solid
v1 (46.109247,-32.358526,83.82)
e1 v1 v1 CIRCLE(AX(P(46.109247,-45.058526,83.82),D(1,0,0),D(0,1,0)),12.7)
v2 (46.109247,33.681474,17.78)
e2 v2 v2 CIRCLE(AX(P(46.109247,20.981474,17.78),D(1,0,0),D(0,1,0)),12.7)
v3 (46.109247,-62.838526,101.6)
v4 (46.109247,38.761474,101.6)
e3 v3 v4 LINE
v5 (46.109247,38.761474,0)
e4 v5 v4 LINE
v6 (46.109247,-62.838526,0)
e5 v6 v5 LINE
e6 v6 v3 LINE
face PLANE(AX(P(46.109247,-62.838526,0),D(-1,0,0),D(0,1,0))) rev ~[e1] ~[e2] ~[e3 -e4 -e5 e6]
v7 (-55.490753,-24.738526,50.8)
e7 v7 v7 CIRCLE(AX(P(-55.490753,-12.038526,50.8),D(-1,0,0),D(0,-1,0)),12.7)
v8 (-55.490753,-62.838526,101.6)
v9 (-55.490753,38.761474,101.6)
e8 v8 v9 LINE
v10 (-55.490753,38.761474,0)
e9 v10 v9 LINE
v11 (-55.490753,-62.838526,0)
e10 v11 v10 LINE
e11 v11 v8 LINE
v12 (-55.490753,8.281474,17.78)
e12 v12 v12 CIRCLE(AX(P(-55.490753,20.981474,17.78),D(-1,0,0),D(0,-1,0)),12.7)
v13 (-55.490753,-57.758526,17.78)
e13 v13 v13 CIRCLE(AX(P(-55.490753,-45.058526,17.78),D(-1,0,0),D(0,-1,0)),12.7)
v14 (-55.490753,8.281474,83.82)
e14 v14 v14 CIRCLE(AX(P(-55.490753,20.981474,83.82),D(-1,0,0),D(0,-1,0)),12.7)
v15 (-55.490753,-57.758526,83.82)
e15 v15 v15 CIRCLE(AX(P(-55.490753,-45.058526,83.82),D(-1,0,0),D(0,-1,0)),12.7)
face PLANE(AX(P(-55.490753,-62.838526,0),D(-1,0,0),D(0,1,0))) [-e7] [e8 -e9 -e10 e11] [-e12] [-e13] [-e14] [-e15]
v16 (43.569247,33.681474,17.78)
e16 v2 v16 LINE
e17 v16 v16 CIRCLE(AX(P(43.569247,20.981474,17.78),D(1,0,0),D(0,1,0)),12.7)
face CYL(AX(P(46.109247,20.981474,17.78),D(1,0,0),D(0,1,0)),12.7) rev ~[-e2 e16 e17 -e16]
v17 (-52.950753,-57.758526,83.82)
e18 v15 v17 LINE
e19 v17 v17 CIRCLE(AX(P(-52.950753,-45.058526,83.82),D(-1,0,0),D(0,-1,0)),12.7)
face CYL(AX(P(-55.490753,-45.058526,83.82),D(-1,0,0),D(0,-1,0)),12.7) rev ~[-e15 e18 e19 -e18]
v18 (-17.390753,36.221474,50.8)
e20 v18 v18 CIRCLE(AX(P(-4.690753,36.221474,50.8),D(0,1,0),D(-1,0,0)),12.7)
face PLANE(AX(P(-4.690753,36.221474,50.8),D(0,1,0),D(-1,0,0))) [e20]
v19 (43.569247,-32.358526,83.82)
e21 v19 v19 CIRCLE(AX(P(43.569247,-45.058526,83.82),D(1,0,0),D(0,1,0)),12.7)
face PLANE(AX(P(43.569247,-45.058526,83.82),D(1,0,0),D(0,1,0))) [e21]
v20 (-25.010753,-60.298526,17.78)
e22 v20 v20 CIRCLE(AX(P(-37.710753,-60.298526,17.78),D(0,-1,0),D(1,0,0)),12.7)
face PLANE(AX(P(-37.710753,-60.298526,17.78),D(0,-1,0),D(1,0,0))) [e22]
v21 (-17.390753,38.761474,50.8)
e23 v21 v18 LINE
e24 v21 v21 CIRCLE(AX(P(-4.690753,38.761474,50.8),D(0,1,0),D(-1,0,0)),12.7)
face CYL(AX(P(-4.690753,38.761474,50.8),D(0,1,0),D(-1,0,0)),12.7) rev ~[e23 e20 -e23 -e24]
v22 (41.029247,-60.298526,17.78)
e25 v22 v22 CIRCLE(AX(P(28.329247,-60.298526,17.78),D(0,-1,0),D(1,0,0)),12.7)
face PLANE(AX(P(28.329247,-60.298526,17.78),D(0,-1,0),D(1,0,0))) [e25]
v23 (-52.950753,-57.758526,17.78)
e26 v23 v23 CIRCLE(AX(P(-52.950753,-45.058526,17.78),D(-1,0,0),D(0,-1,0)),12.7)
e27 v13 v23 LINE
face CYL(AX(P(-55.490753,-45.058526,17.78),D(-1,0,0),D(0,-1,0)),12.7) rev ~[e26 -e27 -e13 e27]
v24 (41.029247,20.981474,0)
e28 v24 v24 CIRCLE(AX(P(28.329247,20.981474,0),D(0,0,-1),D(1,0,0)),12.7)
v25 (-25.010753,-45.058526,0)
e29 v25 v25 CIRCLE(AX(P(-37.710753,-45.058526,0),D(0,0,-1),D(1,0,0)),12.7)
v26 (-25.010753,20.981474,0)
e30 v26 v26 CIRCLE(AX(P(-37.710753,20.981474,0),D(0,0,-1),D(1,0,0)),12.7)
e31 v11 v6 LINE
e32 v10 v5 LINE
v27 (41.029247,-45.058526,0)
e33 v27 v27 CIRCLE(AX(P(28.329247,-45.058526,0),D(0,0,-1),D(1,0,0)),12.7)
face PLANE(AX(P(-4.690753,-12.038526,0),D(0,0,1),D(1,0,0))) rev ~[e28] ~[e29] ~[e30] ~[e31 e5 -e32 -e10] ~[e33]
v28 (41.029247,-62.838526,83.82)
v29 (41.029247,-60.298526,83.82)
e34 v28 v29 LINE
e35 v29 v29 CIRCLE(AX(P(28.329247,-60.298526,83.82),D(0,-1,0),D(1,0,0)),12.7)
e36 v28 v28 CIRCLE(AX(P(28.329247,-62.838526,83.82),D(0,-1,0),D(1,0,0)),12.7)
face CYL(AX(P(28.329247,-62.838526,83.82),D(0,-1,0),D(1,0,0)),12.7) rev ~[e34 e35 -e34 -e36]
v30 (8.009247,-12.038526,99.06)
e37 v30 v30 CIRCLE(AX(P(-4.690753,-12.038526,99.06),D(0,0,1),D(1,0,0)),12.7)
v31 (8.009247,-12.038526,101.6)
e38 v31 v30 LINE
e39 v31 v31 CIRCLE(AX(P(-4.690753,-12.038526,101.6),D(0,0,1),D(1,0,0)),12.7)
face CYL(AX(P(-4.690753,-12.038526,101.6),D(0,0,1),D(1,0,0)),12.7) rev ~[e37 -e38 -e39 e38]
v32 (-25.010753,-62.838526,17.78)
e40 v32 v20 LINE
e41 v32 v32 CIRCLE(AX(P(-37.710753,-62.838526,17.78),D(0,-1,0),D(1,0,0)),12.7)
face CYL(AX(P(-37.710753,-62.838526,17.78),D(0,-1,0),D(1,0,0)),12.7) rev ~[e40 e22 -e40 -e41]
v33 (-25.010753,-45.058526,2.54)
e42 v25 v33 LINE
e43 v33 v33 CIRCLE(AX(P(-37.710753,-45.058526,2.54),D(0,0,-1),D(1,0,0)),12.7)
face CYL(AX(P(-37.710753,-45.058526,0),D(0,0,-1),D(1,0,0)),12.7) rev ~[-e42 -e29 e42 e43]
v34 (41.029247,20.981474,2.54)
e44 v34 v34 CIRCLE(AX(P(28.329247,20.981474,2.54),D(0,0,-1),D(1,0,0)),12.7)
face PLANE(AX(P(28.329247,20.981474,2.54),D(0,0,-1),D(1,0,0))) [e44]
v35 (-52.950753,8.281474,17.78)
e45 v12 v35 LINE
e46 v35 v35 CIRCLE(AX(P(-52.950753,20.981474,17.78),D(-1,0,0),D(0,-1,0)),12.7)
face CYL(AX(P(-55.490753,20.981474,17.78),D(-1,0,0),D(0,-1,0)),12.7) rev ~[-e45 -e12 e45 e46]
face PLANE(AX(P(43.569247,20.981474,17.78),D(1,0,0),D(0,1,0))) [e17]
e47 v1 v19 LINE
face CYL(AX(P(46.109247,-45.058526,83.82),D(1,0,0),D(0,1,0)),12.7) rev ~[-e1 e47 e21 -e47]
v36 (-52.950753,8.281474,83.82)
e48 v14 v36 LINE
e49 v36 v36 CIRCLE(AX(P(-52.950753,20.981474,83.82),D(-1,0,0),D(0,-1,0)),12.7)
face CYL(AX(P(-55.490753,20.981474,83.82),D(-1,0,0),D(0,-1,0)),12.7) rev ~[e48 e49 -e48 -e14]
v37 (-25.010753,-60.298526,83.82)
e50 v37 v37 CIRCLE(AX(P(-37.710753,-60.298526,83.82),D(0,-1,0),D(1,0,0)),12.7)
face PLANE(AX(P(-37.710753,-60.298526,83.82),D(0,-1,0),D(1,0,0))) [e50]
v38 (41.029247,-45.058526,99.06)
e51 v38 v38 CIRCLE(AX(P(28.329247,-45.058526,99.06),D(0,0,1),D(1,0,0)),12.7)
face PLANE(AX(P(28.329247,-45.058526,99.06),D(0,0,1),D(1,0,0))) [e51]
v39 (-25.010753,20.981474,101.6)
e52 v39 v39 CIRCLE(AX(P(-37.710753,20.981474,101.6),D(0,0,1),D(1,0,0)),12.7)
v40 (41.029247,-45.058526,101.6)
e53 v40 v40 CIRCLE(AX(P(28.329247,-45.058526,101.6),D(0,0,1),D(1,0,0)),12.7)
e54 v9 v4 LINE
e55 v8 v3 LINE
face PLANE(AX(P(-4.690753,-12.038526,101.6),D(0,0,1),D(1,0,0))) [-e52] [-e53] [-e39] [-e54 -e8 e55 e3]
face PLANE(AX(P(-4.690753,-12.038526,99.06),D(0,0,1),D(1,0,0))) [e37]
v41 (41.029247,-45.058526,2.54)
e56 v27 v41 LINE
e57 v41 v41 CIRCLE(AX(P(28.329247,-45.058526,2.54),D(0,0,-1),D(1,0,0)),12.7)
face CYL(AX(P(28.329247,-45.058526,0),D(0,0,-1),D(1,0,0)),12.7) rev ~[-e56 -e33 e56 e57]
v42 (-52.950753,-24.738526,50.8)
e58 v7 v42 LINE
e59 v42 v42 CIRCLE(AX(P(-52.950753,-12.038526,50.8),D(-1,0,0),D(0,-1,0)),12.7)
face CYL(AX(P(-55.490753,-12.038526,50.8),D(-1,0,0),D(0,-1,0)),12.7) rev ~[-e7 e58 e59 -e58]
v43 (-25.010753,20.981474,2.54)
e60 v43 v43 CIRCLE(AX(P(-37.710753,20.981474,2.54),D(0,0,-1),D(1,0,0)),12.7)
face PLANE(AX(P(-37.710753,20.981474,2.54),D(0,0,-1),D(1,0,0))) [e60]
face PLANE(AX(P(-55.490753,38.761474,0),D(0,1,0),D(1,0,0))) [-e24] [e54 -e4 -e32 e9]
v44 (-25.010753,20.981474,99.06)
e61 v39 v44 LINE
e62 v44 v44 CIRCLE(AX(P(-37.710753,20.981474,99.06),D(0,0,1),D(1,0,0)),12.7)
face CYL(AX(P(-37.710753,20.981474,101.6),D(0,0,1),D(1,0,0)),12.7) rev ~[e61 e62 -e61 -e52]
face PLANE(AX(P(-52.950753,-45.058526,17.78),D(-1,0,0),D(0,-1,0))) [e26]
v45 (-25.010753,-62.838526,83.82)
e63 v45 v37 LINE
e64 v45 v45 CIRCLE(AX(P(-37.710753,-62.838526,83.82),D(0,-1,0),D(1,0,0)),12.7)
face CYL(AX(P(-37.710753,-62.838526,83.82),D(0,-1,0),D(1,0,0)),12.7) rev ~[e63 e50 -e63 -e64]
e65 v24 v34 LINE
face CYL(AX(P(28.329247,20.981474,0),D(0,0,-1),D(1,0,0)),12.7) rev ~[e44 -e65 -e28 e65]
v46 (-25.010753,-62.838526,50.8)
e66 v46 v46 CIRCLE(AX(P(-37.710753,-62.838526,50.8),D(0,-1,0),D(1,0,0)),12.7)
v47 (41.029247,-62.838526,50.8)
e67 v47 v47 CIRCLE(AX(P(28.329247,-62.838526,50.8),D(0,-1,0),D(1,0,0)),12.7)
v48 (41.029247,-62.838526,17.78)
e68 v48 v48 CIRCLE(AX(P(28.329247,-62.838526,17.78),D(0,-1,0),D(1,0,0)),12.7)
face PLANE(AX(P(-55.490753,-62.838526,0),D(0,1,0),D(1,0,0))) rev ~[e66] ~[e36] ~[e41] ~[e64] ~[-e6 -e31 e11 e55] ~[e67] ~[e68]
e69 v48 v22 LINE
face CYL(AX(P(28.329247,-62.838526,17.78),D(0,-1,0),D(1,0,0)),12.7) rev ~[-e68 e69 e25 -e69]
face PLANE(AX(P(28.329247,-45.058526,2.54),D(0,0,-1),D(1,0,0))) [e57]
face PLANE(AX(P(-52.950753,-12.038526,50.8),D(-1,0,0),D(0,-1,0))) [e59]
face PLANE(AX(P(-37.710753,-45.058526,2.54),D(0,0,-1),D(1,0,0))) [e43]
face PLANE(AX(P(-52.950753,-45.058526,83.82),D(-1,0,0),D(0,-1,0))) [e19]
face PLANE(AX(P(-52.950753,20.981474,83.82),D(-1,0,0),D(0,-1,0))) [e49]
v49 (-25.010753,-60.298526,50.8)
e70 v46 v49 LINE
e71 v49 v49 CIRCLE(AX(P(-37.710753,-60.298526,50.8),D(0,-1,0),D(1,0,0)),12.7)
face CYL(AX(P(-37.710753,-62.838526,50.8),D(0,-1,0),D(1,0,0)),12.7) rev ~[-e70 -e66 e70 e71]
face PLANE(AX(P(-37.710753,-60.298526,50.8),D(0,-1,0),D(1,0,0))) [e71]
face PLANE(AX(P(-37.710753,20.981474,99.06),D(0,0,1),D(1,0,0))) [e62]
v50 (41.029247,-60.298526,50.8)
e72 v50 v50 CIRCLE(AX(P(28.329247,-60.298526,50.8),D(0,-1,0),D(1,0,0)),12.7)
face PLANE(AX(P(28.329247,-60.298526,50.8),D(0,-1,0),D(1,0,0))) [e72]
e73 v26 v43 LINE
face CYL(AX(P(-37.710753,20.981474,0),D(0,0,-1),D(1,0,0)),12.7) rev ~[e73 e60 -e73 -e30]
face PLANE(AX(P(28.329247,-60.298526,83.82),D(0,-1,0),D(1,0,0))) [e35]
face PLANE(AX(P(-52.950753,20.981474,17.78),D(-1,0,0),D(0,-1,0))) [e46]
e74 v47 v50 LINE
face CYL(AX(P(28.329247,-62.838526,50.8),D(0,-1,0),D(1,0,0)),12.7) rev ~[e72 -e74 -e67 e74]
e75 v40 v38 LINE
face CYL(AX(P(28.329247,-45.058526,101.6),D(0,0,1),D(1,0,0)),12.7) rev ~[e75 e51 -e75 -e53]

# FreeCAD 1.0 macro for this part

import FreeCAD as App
import Part
import Sketcher
from FreeCAD import Vector
Q = App.Units.Quantity

doc = App.newDocument("Part")
body = doc.addObject("PartDesign::Body", "Body")

sketch1 = body.newObject("Sketcher::SketchObject", "Sketch")
sketch1.AttachmentSupport = (doc.getObject("XY_Plane"), [""])
sketch1.MapMode = "FlatFace"
sketch1.addGeometry([
    Part.LineSegment(Vector(-55, 39, 0), Vector(-55, -63, 0)),
    Part.LineSegment(Vector(-55, -63, 0), Vector(46, -63, 0)),
    Part.LineSegment(Vector(46, -63, 0), Vector(46, 39, 0)),
    Part.LineSegment(Vector(46, 39, 0), Vector(-55, 39, 0)),
], False)
sketch1.addConstraint([
    Sketcher.Constraint("Coincident", 0, 2, 1, 1),
    Sketcher.Constraint("Coincident", 1, 2, 2, 1),
    Sketcher.Constraint("Coincident", 2, 2, 3, 1),
    Sketcher.Constraint("Coincident", 3, 2, 0, 1),
    Sketcher.Constraint("Vertical", 0),
    Sketcher.Constraint("Horizontal", 1),
    Sketcher.Constraint("Vertical", 2),
    Sketcher.Constraint("Horizontal", 3),
    Sketcher.Constraint("Equal", 3, 0),
    Sketcher.Constraint("DistanceX", 1, 1, 1, 2, Q("4 in")),
    Sketcher.Constraint("DistanceX", 0, 2, -1, 1, 55.490753),
    Sketcher.Constraint("DistanceY", 0, 2, -1, 1, 62.838526),
])
pad1 = body.newObject("PartDesign::Pad", "Pad")
pad1.Profile = sketch1
pad1.Length = Q("4 in")

sketch2 = body.newObject("Sketcher::SketchObject", "Sketch001")
sketch2.AttachmentSupport = (doc.getObject("XZ_Plane"), [""])
sketch2.MapMode = "FlatFace"
sketch2.AttachmentOffset = App.Placement(Vector(0, 0, 62.838526), App.Rotation())
sketch2.addGeometry([
    Part.Circle(Vector(-38, 18, 0), Vector(0, 0, 1), 13),
    Part.Circle(Vector(-38, 51, 0), Vector(0, 0, 1), 13),
    Part.Circle(Vector(-38, 84, 0), Vector(0, 0, 1), 13),
    Part.Circle(Vector(28, 18, 0), Vector(0, 0, 1), 13),
    Part.Circle(Vector(28, 51, 0), Vector(0, 0, 1), 13),
    Part.Circle(Vector(28, 84, 0), Vector(0, 0, 1), 13),
], False)
sketch2.addConstraint([
    Sketcher.Constraint("Equal", 0, 1),
    Sketcher.Constraint("Equal", 1, 2),
    Sketcher.Constraint("Equal", 2, 3),
    Sketcher.Constraint("Equal", 3, 4),
    Sketcher.Constraint("Equal", 4, 5),
    Sketcher.Constraint("Horizontal", 0, 3, 3, 3),
    Sketcher.Constraint("Horizontal", 1, 3, 4, 3),
    Sketcher.Constraint("Horizontal", 2, 3, 5, 3),
    Sketcher.Constraint("Vertical", 0, 3, 1, 3),
    Sketcher.Constraint("Vertical", 1, 3, 2, 3),
    Sketcher.Constraint("Vertical", 3, 3, 4, 3),
    Sketcher.Constraint("Vertical", 4, 3, 5, 3),
    Sketcher.Constraint("Diameter", 0, Q("1 in")),
    Sketcher.Constraint("DistanceY", -1, 1, 1, 3, Q("2 in")),
    Sketcher.Constraint("DistanceY", -1, 1, 0, 3, Q("0.7 in")),
    Sketcher.Constraint("DistanceY", -1, 1, 2, 3, Q("3.3 in")),
    Sketcher.Constraint("DistanceX", 0, 3, 3, 3, Q("2.6 in")),
    Sketcher.Constraint("DistanceX", 0, 3, -1, 1, 37.710753),
])
pocket1 = body.newObject("PartDesign::Pocket", "Pocket")
pocket1.Profile = sketch2
pocket1.Length = Q("0.1 in")

sketch3 = body.newObject("Sketcher::SketchObject", "Sketch002")
sketch3.AttachmentSupport = (doc.getObject("XZ_Plane"), [""])
sketch3.MapMode = "FlatFace"
sketch3.AttachmentOffset = App.Placement(Vector(0, 0, -38.761474), App.Rotation())
sketch3.addGeometry(Part.Circle(Vector(-5, 51, 0), Vector(0, 0, 1), 13), False)
sketch3.addConstraint([
    Sketcher.Constraint("Diameter", 0, Q("1 in")),
    Sketcher.Constraint("DistanceY", -1, 1, 0, 3, Q("2 in")),
    Sketcher.Constraint("DistanceX", 0, 3, -1, 1, 4.690753),
])
pocket2 = body.newObject("PartDesign::Pocket", "Pocket001")
pocket2.Profile = sketch3
pocket2.Length = Q("0.1 in")
pocket2.Reversed = True

sketch4 = body.newObject("Sketcher::SketchObject", "Sketch003")
sketch4.AttachmentSupport = (doc.getObject("YZ_Plane"), [""])
sketch4.MapMode = "FlatFace"
sketch4.AttachmentOffset = App.Placement(Vector(0, 0, -55.490753), App.Rotation())
sketch4.addGeometry([
    Part.Circle(Vector(21, 84, 0), Vector(0, 0, 1), 13),
    Part.Circle(Vector(-12, 51, 0), Vector(0, 0, 1), 13),
    Part.Circle(Vector(21, 18, 0), Vector(0, 0, 1), 13),
    Part.Circle(Vector(-45, 84, 0), Vector(0, 0, 1), 13),
    Part.Circle(Vector(-45, 18, 0), Vector(0, 0, 1), 13),
], False)
sketch4.addConstraint([
    Sketcher.Constraint("Equal", 0, 1),
    Sketcher.Constraint("Equal", 1, 2),
    Sketcher.Constraint("Equal", 2, 3),
    Sketcher.Constraint("Equal", 3, 4),
    Sketcher.Constraint("Horizontal", 0, 3, 3, 3),
    Sketcher.Constraint("Horizontal", 2, 3, 4, 3),
    Sketcher.Constraint("Vertical", 0, 3, 2, 3),
    Sketcher.Constraint("Vertical", 3, 3, 4, 3),
    Sketcher.Constraint("Diameter", 0, Q("1 in")),
    Sketcher.Constraint("DistanceY", -1, 1, 1, 3, Q("2 in")),
    Sketcher.Constraint("DistanceY", -1, 1, 0, 3, Q("3.3 in")),
    Sketcher.Constraint("DistanceY", -1, 1, 2, 3, Q("0.7 in")),
    Sketcher.Constraint("DistanceX", 1, 3, 0, 3, Q("1.3 in")),
    Sketcher.Constraint("DistanceX", 3, 3, 1, 3, Q("1.3 in")),
    Sketcher.Constraint("DistanceX", -1, 1, 0, 3, 20.981474),
])
pocket3 = body.newObject("PartDesign::Pocket", "Pocket002")
pocket3.Profile = sketch4
pocket3.Length = Q("0.1 in")
pocket3.Reversed = True

sketch5 = body.newObject("Sketcher::SketchObject", "Sketch004")
sketch5.AttachmentSupport = (doc.getObject("YZ_Plane"), [""])
sketch5.MapMode = "FlatFace"
sketch5.AttachmentOffset = App.Placement(Vector(0, 0, 46.109247), App.Rotation())
sketch5.addGeometry([
    Part.Circle(Vector(-45, 84, 0), Vector(0, 0, 1), 13),
    Part.Circle(Vector(21, 18, 0), Vector(0, 0, 1), 13),
], False)
sketch5.addConstraint([
    Sketcher.Constraint("Equal", 0, 1),
    Sketcher.Constraint("Diameter", 0, Q("1 in")),
    Sketcher.Constraint("DistanceY", -1, 1, 0, 3, Q("3.3 in")),
    Sketcher.Constraint("DistanceY", -1, 1, 1, 3, Q("0.7 in")),
    Sketcher.Constraint("DistanceX", 0, 3, 1, 3, Q("2.6 in")),
    Sketcher.Constraint("DistanceX", 0, 3, -1, 1, 45.058526),
])
pocket4 = body.newObject("PartDesign::Pocket", "Pocket003")
pocket4.Profile = sketch5
pocket4.Length = Q("0.1 in")

sketch6 = body.newObject("Sketcher::SketchObject", "Sketch005")
sketch6.AttachmentSupport = (doc.getObject("XY_Plane"), [""])
sketch6.MapMode = "FlatFace"
sketch6.AttachmentOffset = App.Placement(Vector(0, 0, 4 * 25.4), App.Rotation())
sketch6.addGeometry([
    Part.Circle(Vector(-38, 21, 0), Vector(0, 0, 1), 13),
    Part.Circle(Vector(-5, -12, 0), Vector(0, 0, 1), 13),
    Part.Circle(Vector(28, -45, 0), Vector(0, 0, 1), 13),
], False)
sketch6.addConstraint([
    Sketcher.Constraint("Equal", 0, 1),
    Sketcher.Constraint("Equal", 1, 2),
    Sketcher.Constraint("Diameter", 0, Q("1 in")),
    Sketcher.Constraint("DistanceX", 0, 3, 1, 3, Q("1.3 in")),
    Sketcher.Constraint("DistanceY", 1, 3, 0, 3, Q("1.3 in")),
    Sketcher.Constraint("DistanceX", 1, 3, 2, 3, Q("1.3 in")),
    Sketcher.Constraint("DistanceY", 2, 3, 1, 3, Q("1.3 in")),
    Sketcher.Constraint("DistanceX", 0, 3, -1, 1, 37.710753),
    Sketcher.Constraint("DistanceY", -1, 1, 0, 3, 20.981474),
])
pocket5 = body.newObject("PartDesign::Pocket", "Pocket004")
pocket5.Profile = sketch6
pocket5.Length = Q("0.1 in")

sketch7 = body.newObject("Sketcher::SketchObject", "Sketch006")
sketch7.AttachmentSupport = (doc.getObject("XY_Plane"), [""])
sketch7.MapMode = "FlatFace"
sketch7.addGeometry([
    Part.Circle(Vector(-38, -45, 0), Vector(0, 0, 1), 13),
    Part.Circle(Vector(-38, 21, 0), Vector(0, 0, 1), 13),
    Part.Circle(Vector(28, -45, 0), Vector(0, 0, 1), 13),
    Part.Circle(Vector(28, 21, 0), Vector(0, 0, 1), 13),
], False)
sketch7.addConstraint([
    Sketcher.Constraint("Equal", 0, 1),
    Sketcher.Constraint("Equal", 1, 2),
    Sketcher.Constraint("Equal", 2, 3),
    Sketcher.Constraint("Horizontal", 0, 3, 2, 3),
    Sketcher.Constraint("Horizontal", 1, 3, 3, 3),
    Sketcher.Constraint("Vertical", 0, 3, 1, 3),
    Sketcher.Constraint("Vertical", 2, 3, 3, 3),
    Sketcher.Constraint("Diameter", 0, Q("1 in")),
    Sketcher.Constraint("DistanceY", 0, 3, 1, 3, Q("2.6 in")),
    Sketcher.Constraint("DistanceX", 0, 3, 2, 3, Q("2.6 in")),
    Sketcher.Constraint("DistanceX", 0, 3, -1, 1, 37.710753),
    Sketcher.Constraint("DistanceY", 0, 3, -1, 1, 45.058526),
])
pocket6 = body.newObject("PartDesign::Pocket", "Pocket005")
pocket6.Profile = sketch7
pocket6.Length = Q("0.1 in")
pocket6.Reversed = True

doc.recompute()
